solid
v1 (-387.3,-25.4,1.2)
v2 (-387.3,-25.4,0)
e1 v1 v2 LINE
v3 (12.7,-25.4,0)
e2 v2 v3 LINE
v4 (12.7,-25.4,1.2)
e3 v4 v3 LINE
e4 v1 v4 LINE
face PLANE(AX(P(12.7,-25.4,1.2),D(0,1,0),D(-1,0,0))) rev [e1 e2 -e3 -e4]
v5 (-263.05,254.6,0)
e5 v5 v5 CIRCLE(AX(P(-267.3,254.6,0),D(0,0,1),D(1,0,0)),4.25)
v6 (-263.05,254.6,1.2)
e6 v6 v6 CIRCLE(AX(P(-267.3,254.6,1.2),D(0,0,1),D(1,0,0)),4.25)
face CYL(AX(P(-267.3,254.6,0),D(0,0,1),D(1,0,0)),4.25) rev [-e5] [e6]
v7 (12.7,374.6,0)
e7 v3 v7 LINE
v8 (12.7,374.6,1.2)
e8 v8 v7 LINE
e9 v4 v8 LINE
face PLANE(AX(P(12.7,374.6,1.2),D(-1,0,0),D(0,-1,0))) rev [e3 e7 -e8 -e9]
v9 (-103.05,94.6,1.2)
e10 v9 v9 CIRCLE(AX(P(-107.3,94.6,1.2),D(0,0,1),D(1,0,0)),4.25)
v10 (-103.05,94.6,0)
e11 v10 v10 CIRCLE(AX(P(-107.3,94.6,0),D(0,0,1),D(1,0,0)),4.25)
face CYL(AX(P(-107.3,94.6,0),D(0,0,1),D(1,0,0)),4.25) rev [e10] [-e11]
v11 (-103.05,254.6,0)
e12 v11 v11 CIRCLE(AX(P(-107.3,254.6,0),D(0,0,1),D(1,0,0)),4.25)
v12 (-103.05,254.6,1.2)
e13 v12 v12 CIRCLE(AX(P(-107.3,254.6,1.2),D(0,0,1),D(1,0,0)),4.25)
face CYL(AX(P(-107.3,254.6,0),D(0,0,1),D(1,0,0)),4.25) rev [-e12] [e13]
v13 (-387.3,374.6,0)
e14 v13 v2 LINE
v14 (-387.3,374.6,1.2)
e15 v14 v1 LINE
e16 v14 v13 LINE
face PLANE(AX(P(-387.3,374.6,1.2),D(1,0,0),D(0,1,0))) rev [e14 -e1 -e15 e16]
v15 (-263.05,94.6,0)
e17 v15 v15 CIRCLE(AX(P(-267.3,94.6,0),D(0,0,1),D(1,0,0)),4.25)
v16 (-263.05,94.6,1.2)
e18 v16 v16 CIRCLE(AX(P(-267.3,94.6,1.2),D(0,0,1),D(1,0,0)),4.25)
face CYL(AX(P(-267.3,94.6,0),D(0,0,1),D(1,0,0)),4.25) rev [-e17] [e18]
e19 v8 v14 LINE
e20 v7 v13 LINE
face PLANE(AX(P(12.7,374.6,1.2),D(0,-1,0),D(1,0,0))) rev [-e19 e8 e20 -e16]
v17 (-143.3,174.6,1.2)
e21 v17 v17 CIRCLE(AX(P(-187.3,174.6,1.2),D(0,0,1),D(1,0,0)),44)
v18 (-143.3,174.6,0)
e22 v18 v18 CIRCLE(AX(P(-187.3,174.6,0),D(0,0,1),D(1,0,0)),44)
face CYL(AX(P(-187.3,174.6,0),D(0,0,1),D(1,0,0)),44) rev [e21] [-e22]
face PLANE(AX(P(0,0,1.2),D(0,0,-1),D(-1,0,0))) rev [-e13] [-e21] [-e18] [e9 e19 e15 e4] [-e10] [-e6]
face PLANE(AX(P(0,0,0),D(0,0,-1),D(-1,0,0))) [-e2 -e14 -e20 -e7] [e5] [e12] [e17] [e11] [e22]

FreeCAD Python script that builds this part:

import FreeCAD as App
import Part
import Sketcher

V = App.Vector
Q = App.Units.Quantity


def add_polygon(sketch, points):
    """Adds a closed chain of lines whose ends are joined by coincident constraints."""
    first, n = sketch.GeometryCount, len(points)
    for a, b in zip(points, points[1:] + points[:1]):
        sketch.addGeometry(Part.LineSegment(App.Vector(*a, 0), App.Vector(*b, 0)), False)
    for i in range(n):
        sketch.addConstraint(Sketcher.Constraint("Coincident", first + i, 2, first + (i + 1) % n, 1))

doc = App.newDocument("Part")
params = doc.addObject("Spreadsheet::Sheet", "Params")
for row, (alias, value) in enumerate([
    ("sketch1_width", "400 mm"),
    ("pad1_length", "1.2 mm"),
    ("sketch2_diameter", "88 mm"),
    ("sketch2_diameter2", "8.5 mm"),
], start=1):
    params.set(f"A{row}", alias)
    params.set(f"B{row}", "=" + value)
    params.setAlias(f"B{row}", alias)

body = doc.addObject("PartDesign::Body", "Body")

# Sketch on XY plane
sketch1 = body.newObject("Sketcher::SketchObject", "Sketch")
sketch1.AttachmentSupport = (doc.getObject("XY_Plane"), [""])
sketch1.MapMode = "FlatFace"
add_polygon(sketch1, [(-387, 375), (-387, -25), (13, -25), (13, 375)])  # lines 0-3
sketch1.addConstraint([
    Sketcher.Constraint("Vertical", 0),
    Sketcher.Constraint("Horizontal", 1),
    Sketcher.Constraint("Vertical", 2),
    Sketcher.Constraint("Horizontal", 3),
    Sketcher.Constraint("Equal", 3, 0),
    Sketcher.Constraint("DistanceX", 1, 1, 1, 2, Q("400 mm")),
    Sketcher.Constraint("DistanceX", 0, 2, -1, 1, Q("387.3 mm")),
    Sketcher.Constraint("DistanceY", 0, 2, -1, 1, Q("25.4 mm")),
])
sketch1.setExpression("Constraints[9]", "Params.sketch1_width")
pad1 = body.newObject("PartDesign::Pad", "Pad")
pad1.Profile = sketch1
pad1.setExpression("Length", "Params.pad1_length")

# Sketch on XY plane
sketch2 = body.newObject("Sketcher::SketchObject", "Sketch001")
sketch2.AttachmentSupport = (doc.getObject("XY_Plane"), [""])
sketch2.MapMode = "FlatFace"
sketch2.AttachmentOffset = App.Placement(V(0, 0, 1.2), App.Rotation())
sketch2.addGeometry([
    Part.Circle(V(-187.3, 174.6, 0), V(0, 0, 1), 44),  # 0
    Part.Circle(V(-267.3, 254.6, 0), V(0, 0, 1), 4.2),  # 1
    Part.Circle(V(-267.3, 94.6, 0), V(0, 0, 1), 4.2),  # 2
    Part.Circle(V(-107.3, 94.6, 0), V(0, 0, 1), 4.2),  # 3
    Part.Circle(V(-107.3, 254.6, 0), V(0, 0, 1), 4.2),  # 4
], False)
sketch2.addConstraint([
    Sketcher.Constraint("Equal", 1, 2),
    Sketcher.Constraint("Equal", 2, 3),
    Sketcher.Constraint("Equal", 3, 4),
    Sketcher.Constraint("Horizontal", 2, 3, 3, 3),
    Sketcher.Constraint("Horizontal", 1, 3, 4, 3),
    Sketcher.Constraint("Vertical", 1, 3, 2, 3),
    Sketcher.Constraint("Vertical", 3, 3, 4, 3),
    Sketcher.Constraint("Diameter", 0, Q("88 mm")),
    Sketcher.Constraint("Diameter", 1, Q("8.5 mm")),
    Sketcher.Constraint("DistanceX", 1, 3, 0, 3, Q("80 mm")),
    Sketcher.Constraint("DistanceY", 0, 3, 1, 3, Q("80 mm")),
    Sketcher.Constraint("DistanceY", 2, 3, 0, 3, Q("80 mm")),
    Sketcher.Constraint("DistanceX", 0, 3, 3, 3, Q("80 mm")),
    Sketcher.Constraint("DistanceX", 0, 3, -1, 1, Q("187.3 mm")),
    Sketcher.Constraint("DistanceY", -1, 1, 0, 3, Q("174.6 mm")),
])
sketch2.setExpression("Constraints[7]", "Params.sketch2_diameter")
sketch2.setExpression("Constraints[8]", "Params.sketch2_diameter2")
pocket1 = body.newObject("PartDesign::Pocket", "Pocket")
pocket1.Profile = sketch2
pocket1.Type = "ThroughAll"

doc.recompute()
